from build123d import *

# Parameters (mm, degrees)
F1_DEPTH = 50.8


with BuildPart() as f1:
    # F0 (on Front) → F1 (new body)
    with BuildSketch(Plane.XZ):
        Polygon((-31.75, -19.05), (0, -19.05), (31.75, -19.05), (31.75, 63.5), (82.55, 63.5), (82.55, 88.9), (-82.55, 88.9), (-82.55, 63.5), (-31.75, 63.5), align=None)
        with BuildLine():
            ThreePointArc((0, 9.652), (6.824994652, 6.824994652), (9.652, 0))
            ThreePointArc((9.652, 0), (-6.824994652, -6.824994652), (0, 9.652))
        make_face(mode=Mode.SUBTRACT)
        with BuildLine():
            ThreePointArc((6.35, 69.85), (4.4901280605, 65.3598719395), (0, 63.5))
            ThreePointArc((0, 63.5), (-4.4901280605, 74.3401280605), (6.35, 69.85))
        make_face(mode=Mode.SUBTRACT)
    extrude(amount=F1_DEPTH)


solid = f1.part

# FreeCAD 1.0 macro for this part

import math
import FreeCAD as App
import Part
import Sketcher
from FreeCAD import Vector
Q = App.Units.Quantity


def add_polygon(sketch, points):
    """Adds a closed chain of lines whose ends are joined by coincident constraints."""
    first, n = sketch.GeometryCount, len(points)
    for a, b in zip(points, points[1:] + points[:1]):
        sketch.addGeometry(Part.LineSegment(App.Vector(*a, 0), App.Vector(*b, 0)), False)
    for i in range(n):
        sketch.addConstraint(Sketcher.Constraint("Coincident", first + i, 2, first + (i + 1) % n, 1))

doc = App.newDocument("Part")
body = doc.addObject("PartDesign::Body", "Body")

sketch1 = body.newObject("Sketcher::SketchObject", "Sketch")
sketch1.AttachmentSupport = (doc.getObject("XZ_Plane"), [""])
sketch1.MapMode = "FlatFace"
add_polygon(sketch1, [(-32, -19), (32, -19), (32, 64), (83, 64), (83, 89), (-83, 89), (-83, 64), (-32, 64)])
sketch1.addGeometry(Part.ArcOfCircle(Part.Circle(Vector(0, 0, 0), Vector(0, 0, 1), 10), math.radians(90), math.radians(360)), False)
sketch1.addGeometry(Part.ArcOfCircle(Part.Circle(Vector(0, 0, 0), Vector(0, 0, 1), 10), math.radians(0), math.radians(90)), False)
sketch1.addGeometry(Part.ArcOfCircle(Part.Circle(Vector(0, 70, 0), Vector(0, 0, 1), 6), math.radians(0), math.radians(270)), False)
sketch1.addGeometry(Part.ArcOfCircle(Part.Circle(Vector(0, 70, 0), Vector(0, 0, 1), 6), math.radians(-90), math.radians(0)), False)
sketch1.addConstraint(Sketcher.Constraint("Tangent", 8, 1, 9, 2))
sketch1.addConstraint(Sketcher.Constraint("Coincident", 9, 1, 8, 2))
sketch1.addConstraint(Sketcher.Constraint("Tangent", 10, 1, 11, 2))
sketch1.addConstraint(Sketcher.Constraint("Coincident", 11, 1, 10, 2))
sketch1.addConstraint(Sketcher.Constraint("Horizontal", 0))
sketch1.addConstraint(Sketcher.Constraint("Vertical", 1))
sketch1.addConstraint(Sketcher.Constraint("Horizontal", 2))
sketch1.addConstraint(Sketcher.Constraint("Vertical", 3))
sketch1.addConstraint(Sketcher.Constraint("Horizontal", 4))
sketch1.addConstraint(Sketcher.Constraint("Vertical", 5))
sketch1.addConstraint(Sketcher.Constraint("Horizontal", 6))
sketch1.addConstraint(Sketcher.Constraint("Vertical", 7))
sketch1.addConstraint(Sketcher.Constraint("Coincident", 8, 3, -1, 1))
sketch1.addConstraint(Sketcher.Constraint("Symmetric", 2, 2, 5, 2, -2))
sketch1.addConstraint(Sketcher.Constraint("PointOnObject", 10, 3, -2))
sketch1.addConstraint(Sketcher.Constraint("PointOnObject", 8, 1, -2))
sketch1.addConstraint(Sketcher.Constraint("PointOnObject", 9, 1, -1))
sketch1.addConstraint(Sketcher.Constraint("PointOnObject", 11, 1, -2))
sketch1.addConstraint(Sketcher.Constraint("Horizontal", 11, 3, 10, 1))
sketch1.addConstraint(Sketcher.Constraint("Horizontal", 6, 2, 11, 1))
sketch1.addConstraint(Sketcher.Constraint("Equal", 2, 6))
sketch1.addConstraint(Sketcher.Constraint("DistanceX", 2, 1, 2, 2, Q("2 in")))
sketch1.addConstraint(Sketcher.Constraint("DistanceY", 3, 1, 3, 2, Q("1 in")))
sketch1.addConstraint(Sketcher.Constraint("Radius", 8, Q("0.38 in")))
sketch1.addConstraint(Sketcher.Constraint("Radius", 10, Q("0.25 in")))
sketch1.addConstraint(Sketcher.Constraint("DistanceX", 0, 1, 0, 2, Q("2.5 in")))
sketch1.addConstraint(Sketcher.Constraint("DistanceY", 1, 1, 1, 2, Q("3.25 in")))
sketch1.addConstraint(Sketcher.Constraint("DistanceY", -1, 1, 1, 2, Q("2.5 in")))
pad1 = body.newObject("PartDesign::Pad", "Pad")
pad1.Profile = sketch1
pad1.Length = Q("2 in")

doc.recompute()
